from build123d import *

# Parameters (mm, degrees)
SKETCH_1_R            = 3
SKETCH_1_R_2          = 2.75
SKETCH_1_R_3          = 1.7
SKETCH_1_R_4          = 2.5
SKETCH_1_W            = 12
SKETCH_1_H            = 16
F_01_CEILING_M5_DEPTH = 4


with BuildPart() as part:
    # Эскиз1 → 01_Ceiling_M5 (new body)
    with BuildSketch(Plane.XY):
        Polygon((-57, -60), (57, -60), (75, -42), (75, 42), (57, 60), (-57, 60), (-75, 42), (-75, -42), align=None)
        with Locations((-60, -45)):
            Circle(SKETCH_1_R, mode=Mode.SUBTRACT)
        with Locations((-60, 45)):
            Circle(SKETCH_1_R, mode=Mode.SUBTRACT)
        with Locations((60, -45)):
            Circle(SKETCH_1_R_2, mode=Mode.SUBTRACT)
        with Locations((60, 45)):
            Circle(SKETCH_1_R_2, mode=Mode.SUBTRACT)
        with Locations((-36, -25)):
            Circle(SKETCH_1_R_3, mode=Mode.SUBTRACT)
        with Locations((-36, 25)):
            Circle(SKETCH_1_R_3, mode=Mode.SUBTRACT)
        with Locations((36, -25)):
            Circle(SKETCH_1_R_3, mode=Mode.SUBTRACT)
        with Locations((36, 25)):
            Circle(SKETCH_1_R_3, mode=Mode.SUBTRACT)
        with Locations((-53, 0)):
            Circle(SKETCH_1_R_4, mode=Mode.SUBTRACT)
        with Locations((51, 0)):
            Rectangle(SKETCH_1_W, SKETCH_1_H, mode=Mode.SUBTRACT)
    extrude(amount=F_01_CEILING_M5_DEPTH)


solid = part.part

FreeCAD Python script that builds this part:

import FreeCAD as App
import Part
import Sketcher

V = App.Vector


def add_polygon(sketch, points):
    """Adds a closed chain of lines whose ends are joined by coincident constraints."""
    first, n = sketch.GeometryCount, len(points)
    for a, b in zip(points, points[1:] + points[:1]):
        sketch.addGeometry(Part.LineSegment(App.Vector(*a, 0), App.Vector(*b, 0)), False)
    for i in range(n):
        sketch.addConstraint(Sketcher.Constraint("Coincident", first + i, 2, first + (i + 1) % n, 1))

doc = App.newDocument("Part")
params = doc.addObject("Spreadsheet::Sheet", "Params")
for row, (alias, value) in enumerate([
    ("sketch1_diameter", "6 mm"),
    ("sketch1_diameter2", "5 mm"),
    ("sketch1_diameter3", "3.4 mm"),
    ("sketch1_diameter4", "5.5 mm"),
    ("sketch1_width", "114 mm"),
    ("pad1_length", "4 mm"),
], start=1):
    params.set(f"A{row}", alias)
    params.set(f"B{row}", "=" + value)
    params.setAlias(f"B{row}", alias)

body = doc.addObject("PartDesign::Body", "Body")

# Sketch on XY plane
sketch1 = body.newObject("Sketcher::SketchObject", "Sketch")
sketch1.AttachmentSupport = (doc.getObject("XY_Plane"), [""])
sketch1.MapMode = "FlatFace"
add_polygon(sketch1, [(-57, -60), (57, -60), (75, -42), (75, 42), (57, 60), (-57, 60), (-75, 42), (-75, -42)])  # lines 0-7
sketch1.addGeometry(Part.Circle(V(-60, -45, 0), V(0, 0, 1), 3), False)  # 8
sketch1.addGeometry(Part.Circle(V(-36, -25, 0), V(0, 0, 1), 1.7), False)  # 9
sketch1.addGeometry(Part.Circle(V(60, -45, 0), V(0, 0, 1), 2.75), False)  # 10
sketch1.addGeometry(Part.Circle(V(36, -25, 0), V(0, 0, 1), 1.7), False)  # 11
sketch1.addGeometry(Part.Circle(V(-53, 0, 0), V(0, 0, 1), 2.5), False)  # 12
sketch1.addGeometry(Part.Circle(V(-36, 25, 0), V(0, 0, 1), 1.7), False)  # 13
sketch1.addGeometry(Part.Circle(V(-60, 45, 0), V(0, 0, 1), 3), False)  # 14
add_polygon(sketch1, [(57, -8), (45, -8), (45, 8), (57, 8)])  # lines 15-18
sketch1.addGeometry(Part.Circle(V(36, 25, 0), V(0, 0, 1), 1.7), False)  # 19
sketch1.addGeometry(Part.Circle(V(60, 45, 0), V(0, 0, 1), 2.75), False)  # 20
sketch1.addConstraint(Sketcher.Constraint("Horizontal", 0))
sketch1.addConstraint(Sketcher.Constraint("Vertical", 2))
sketch1.addConstraint(Sketcher.Constraint("Horizontal", 4))
sketch1.addConstraint(Sketcher.Constraint("Vertical", 6))
sketch1.addConstraint(Sketcher.Constraint("Horizontal", 15))
sketch1.addConstraint(Sketcher.Constraint("Vertical", 16))
sketch1.addConstraint(Sketcher.Constraint("Horizontal", 17))
sketch1.addConstraint(Sketcher.Constraint("Vertical", 18))
sketch1.addConstraint(Sketcher.Constraint("Equal", 9, 11))
sketch1.addConstraint(Sketcher.Constraint("Equal", 11, 13))
sketch1.addConstraint(Sketcher.Constraint("Equal", 8, 14))
sketch1.addConstraint(Sketcher.Constraint("Equal", 13, 19))
sketch1.addConstraint(Sketcher.Constraint("Equal", 10, 20))
sketch1.addConstraint(Sketcher.Constraint("Symmetric", 11, 3, 13, 3, -1, 1))
sketch1.addConstraint(Sketcher.Constraint("Symmetric", 10, 3, 14, 3, -1, 1))
sketch1.addConstraint(Sketcher.Constraint("Symmetric", 9, 3, 19, 3, -1, 1))
sketch1.addConstraint(Sketcher.Constraint("Symmetric", 8, 3, 20, 3, -1, 1))
sketch1.addConstraint(Sketcher.Constraint("Symmetric", 0, 2, 4, 2, -1, 1))
sketch1.addConstraint(Sketcher.Constraint("Symmetric", 1, 2, 5, 2, -1, 1))
sketch1.addConstraint(Sketcher.Constraint("Symmetric", 8, 3, 10, 3, -2))
sketch1.addConstraint(Sketcher.Constraint("Symmetric", 9, 3, 11, 3, -2))
sketch1.addConstraint(Sketcher.Constraint("PointOnObject", 12, 3, -1))
sketch1.addConstraint(Sketcher.Constraint("Perpendicular", 1, 3))
sketch1.addConstraint(Sketcher.Constraint("Perpendicular", 5, 7))
sketch1.addConstraint(Sketcher.Constraint("Horizontal", 2, 2, 5, 2))
sketch1.addConstraint(Sketcher.Constraint("Horizontal", 1, 2, 6, 2))
sketch1.addConstraint(Sketcher.Constraint("Vertical", 0, 2, 3, 2))
sketch1.addConstraint(Sketcher.Constraint("Vertical", 3, 2, 17, 2))
sketch1.addConstraint(Sketcher.Constraint("Diameter", 8, 6.0))
sketch1.addConstraint(Sketcher.Constraint("Diameter", 12, 5.0))
sketch1.addConstraint(Sketcher.Constraint("Diameter", 9, 3.4))
sketch1.addConstraint(Sketcher.Constraint("Diameter", 10, 5.5))
sketch1.addConstraint(Sketcher.Constraint("DistanceX", 0, 1, 0, 2, 114.0))
sketch1.addConstraint(Sketcher.Constraint("DistanceX", 15, 2, 15, 1, 12.0))
sketch1.addConstraint(Sketcher.Constraint("DistanceY", 2, 1, 2, 2, 84.0))
sketch1.addConstraint(Sketcher.Constraint("DistanceY", 16, 1, 16, 2, 16.0))
sketch1.addConstraint(Sketcher.Constraint("DistanceX", 8, 3, -1, 1, 60.0))
sketch1.addConstraint(Sketcher.Constraint("DistanceY", 8, 3, -1, 1, 45.0))
sketch1.addConstraint(Sketcher.Constraint("DistanceX", 9, 3, -1, 1, 36.0))
sketch1.addConstraint(Sketcher.Constraint("DistanceY", 9, 3, -1, 1, 25.0))
sketch1.addConstraint(Sketcher.Constraint("DistanceX", 12, 3, -1, 1, 53.0))
sketch1.addConstraint(Sketcher.Constraint("DistanceY", 0, 2, -1, 1, 60.0))
sketch1.addConstraint(Sketcher.Constraint("DistanceY", 15, 2, -1, 1, 8.0))
sketch1.setExpression("Constraints[40]", "Params.sketch1_diameter")
sketch1.setExpression("Constraints[41]", "Params.sketch1_diameter2")
sketch1.setExpression("Constraints[42]", "Params.sketch1_diameter3")
sketch1.setExpression("Constraints[43]", "Params.sketch1_diameter4")
sketch1.setExpression("Constraints[44]", "Params.sketch1_width")
pad1 = body.newObject("PartDesign::Pad", "Pad")
pad1.Profile = sketch1
pad1.setExpression("Length", "Params.pad1_length")

doc.recompute()
